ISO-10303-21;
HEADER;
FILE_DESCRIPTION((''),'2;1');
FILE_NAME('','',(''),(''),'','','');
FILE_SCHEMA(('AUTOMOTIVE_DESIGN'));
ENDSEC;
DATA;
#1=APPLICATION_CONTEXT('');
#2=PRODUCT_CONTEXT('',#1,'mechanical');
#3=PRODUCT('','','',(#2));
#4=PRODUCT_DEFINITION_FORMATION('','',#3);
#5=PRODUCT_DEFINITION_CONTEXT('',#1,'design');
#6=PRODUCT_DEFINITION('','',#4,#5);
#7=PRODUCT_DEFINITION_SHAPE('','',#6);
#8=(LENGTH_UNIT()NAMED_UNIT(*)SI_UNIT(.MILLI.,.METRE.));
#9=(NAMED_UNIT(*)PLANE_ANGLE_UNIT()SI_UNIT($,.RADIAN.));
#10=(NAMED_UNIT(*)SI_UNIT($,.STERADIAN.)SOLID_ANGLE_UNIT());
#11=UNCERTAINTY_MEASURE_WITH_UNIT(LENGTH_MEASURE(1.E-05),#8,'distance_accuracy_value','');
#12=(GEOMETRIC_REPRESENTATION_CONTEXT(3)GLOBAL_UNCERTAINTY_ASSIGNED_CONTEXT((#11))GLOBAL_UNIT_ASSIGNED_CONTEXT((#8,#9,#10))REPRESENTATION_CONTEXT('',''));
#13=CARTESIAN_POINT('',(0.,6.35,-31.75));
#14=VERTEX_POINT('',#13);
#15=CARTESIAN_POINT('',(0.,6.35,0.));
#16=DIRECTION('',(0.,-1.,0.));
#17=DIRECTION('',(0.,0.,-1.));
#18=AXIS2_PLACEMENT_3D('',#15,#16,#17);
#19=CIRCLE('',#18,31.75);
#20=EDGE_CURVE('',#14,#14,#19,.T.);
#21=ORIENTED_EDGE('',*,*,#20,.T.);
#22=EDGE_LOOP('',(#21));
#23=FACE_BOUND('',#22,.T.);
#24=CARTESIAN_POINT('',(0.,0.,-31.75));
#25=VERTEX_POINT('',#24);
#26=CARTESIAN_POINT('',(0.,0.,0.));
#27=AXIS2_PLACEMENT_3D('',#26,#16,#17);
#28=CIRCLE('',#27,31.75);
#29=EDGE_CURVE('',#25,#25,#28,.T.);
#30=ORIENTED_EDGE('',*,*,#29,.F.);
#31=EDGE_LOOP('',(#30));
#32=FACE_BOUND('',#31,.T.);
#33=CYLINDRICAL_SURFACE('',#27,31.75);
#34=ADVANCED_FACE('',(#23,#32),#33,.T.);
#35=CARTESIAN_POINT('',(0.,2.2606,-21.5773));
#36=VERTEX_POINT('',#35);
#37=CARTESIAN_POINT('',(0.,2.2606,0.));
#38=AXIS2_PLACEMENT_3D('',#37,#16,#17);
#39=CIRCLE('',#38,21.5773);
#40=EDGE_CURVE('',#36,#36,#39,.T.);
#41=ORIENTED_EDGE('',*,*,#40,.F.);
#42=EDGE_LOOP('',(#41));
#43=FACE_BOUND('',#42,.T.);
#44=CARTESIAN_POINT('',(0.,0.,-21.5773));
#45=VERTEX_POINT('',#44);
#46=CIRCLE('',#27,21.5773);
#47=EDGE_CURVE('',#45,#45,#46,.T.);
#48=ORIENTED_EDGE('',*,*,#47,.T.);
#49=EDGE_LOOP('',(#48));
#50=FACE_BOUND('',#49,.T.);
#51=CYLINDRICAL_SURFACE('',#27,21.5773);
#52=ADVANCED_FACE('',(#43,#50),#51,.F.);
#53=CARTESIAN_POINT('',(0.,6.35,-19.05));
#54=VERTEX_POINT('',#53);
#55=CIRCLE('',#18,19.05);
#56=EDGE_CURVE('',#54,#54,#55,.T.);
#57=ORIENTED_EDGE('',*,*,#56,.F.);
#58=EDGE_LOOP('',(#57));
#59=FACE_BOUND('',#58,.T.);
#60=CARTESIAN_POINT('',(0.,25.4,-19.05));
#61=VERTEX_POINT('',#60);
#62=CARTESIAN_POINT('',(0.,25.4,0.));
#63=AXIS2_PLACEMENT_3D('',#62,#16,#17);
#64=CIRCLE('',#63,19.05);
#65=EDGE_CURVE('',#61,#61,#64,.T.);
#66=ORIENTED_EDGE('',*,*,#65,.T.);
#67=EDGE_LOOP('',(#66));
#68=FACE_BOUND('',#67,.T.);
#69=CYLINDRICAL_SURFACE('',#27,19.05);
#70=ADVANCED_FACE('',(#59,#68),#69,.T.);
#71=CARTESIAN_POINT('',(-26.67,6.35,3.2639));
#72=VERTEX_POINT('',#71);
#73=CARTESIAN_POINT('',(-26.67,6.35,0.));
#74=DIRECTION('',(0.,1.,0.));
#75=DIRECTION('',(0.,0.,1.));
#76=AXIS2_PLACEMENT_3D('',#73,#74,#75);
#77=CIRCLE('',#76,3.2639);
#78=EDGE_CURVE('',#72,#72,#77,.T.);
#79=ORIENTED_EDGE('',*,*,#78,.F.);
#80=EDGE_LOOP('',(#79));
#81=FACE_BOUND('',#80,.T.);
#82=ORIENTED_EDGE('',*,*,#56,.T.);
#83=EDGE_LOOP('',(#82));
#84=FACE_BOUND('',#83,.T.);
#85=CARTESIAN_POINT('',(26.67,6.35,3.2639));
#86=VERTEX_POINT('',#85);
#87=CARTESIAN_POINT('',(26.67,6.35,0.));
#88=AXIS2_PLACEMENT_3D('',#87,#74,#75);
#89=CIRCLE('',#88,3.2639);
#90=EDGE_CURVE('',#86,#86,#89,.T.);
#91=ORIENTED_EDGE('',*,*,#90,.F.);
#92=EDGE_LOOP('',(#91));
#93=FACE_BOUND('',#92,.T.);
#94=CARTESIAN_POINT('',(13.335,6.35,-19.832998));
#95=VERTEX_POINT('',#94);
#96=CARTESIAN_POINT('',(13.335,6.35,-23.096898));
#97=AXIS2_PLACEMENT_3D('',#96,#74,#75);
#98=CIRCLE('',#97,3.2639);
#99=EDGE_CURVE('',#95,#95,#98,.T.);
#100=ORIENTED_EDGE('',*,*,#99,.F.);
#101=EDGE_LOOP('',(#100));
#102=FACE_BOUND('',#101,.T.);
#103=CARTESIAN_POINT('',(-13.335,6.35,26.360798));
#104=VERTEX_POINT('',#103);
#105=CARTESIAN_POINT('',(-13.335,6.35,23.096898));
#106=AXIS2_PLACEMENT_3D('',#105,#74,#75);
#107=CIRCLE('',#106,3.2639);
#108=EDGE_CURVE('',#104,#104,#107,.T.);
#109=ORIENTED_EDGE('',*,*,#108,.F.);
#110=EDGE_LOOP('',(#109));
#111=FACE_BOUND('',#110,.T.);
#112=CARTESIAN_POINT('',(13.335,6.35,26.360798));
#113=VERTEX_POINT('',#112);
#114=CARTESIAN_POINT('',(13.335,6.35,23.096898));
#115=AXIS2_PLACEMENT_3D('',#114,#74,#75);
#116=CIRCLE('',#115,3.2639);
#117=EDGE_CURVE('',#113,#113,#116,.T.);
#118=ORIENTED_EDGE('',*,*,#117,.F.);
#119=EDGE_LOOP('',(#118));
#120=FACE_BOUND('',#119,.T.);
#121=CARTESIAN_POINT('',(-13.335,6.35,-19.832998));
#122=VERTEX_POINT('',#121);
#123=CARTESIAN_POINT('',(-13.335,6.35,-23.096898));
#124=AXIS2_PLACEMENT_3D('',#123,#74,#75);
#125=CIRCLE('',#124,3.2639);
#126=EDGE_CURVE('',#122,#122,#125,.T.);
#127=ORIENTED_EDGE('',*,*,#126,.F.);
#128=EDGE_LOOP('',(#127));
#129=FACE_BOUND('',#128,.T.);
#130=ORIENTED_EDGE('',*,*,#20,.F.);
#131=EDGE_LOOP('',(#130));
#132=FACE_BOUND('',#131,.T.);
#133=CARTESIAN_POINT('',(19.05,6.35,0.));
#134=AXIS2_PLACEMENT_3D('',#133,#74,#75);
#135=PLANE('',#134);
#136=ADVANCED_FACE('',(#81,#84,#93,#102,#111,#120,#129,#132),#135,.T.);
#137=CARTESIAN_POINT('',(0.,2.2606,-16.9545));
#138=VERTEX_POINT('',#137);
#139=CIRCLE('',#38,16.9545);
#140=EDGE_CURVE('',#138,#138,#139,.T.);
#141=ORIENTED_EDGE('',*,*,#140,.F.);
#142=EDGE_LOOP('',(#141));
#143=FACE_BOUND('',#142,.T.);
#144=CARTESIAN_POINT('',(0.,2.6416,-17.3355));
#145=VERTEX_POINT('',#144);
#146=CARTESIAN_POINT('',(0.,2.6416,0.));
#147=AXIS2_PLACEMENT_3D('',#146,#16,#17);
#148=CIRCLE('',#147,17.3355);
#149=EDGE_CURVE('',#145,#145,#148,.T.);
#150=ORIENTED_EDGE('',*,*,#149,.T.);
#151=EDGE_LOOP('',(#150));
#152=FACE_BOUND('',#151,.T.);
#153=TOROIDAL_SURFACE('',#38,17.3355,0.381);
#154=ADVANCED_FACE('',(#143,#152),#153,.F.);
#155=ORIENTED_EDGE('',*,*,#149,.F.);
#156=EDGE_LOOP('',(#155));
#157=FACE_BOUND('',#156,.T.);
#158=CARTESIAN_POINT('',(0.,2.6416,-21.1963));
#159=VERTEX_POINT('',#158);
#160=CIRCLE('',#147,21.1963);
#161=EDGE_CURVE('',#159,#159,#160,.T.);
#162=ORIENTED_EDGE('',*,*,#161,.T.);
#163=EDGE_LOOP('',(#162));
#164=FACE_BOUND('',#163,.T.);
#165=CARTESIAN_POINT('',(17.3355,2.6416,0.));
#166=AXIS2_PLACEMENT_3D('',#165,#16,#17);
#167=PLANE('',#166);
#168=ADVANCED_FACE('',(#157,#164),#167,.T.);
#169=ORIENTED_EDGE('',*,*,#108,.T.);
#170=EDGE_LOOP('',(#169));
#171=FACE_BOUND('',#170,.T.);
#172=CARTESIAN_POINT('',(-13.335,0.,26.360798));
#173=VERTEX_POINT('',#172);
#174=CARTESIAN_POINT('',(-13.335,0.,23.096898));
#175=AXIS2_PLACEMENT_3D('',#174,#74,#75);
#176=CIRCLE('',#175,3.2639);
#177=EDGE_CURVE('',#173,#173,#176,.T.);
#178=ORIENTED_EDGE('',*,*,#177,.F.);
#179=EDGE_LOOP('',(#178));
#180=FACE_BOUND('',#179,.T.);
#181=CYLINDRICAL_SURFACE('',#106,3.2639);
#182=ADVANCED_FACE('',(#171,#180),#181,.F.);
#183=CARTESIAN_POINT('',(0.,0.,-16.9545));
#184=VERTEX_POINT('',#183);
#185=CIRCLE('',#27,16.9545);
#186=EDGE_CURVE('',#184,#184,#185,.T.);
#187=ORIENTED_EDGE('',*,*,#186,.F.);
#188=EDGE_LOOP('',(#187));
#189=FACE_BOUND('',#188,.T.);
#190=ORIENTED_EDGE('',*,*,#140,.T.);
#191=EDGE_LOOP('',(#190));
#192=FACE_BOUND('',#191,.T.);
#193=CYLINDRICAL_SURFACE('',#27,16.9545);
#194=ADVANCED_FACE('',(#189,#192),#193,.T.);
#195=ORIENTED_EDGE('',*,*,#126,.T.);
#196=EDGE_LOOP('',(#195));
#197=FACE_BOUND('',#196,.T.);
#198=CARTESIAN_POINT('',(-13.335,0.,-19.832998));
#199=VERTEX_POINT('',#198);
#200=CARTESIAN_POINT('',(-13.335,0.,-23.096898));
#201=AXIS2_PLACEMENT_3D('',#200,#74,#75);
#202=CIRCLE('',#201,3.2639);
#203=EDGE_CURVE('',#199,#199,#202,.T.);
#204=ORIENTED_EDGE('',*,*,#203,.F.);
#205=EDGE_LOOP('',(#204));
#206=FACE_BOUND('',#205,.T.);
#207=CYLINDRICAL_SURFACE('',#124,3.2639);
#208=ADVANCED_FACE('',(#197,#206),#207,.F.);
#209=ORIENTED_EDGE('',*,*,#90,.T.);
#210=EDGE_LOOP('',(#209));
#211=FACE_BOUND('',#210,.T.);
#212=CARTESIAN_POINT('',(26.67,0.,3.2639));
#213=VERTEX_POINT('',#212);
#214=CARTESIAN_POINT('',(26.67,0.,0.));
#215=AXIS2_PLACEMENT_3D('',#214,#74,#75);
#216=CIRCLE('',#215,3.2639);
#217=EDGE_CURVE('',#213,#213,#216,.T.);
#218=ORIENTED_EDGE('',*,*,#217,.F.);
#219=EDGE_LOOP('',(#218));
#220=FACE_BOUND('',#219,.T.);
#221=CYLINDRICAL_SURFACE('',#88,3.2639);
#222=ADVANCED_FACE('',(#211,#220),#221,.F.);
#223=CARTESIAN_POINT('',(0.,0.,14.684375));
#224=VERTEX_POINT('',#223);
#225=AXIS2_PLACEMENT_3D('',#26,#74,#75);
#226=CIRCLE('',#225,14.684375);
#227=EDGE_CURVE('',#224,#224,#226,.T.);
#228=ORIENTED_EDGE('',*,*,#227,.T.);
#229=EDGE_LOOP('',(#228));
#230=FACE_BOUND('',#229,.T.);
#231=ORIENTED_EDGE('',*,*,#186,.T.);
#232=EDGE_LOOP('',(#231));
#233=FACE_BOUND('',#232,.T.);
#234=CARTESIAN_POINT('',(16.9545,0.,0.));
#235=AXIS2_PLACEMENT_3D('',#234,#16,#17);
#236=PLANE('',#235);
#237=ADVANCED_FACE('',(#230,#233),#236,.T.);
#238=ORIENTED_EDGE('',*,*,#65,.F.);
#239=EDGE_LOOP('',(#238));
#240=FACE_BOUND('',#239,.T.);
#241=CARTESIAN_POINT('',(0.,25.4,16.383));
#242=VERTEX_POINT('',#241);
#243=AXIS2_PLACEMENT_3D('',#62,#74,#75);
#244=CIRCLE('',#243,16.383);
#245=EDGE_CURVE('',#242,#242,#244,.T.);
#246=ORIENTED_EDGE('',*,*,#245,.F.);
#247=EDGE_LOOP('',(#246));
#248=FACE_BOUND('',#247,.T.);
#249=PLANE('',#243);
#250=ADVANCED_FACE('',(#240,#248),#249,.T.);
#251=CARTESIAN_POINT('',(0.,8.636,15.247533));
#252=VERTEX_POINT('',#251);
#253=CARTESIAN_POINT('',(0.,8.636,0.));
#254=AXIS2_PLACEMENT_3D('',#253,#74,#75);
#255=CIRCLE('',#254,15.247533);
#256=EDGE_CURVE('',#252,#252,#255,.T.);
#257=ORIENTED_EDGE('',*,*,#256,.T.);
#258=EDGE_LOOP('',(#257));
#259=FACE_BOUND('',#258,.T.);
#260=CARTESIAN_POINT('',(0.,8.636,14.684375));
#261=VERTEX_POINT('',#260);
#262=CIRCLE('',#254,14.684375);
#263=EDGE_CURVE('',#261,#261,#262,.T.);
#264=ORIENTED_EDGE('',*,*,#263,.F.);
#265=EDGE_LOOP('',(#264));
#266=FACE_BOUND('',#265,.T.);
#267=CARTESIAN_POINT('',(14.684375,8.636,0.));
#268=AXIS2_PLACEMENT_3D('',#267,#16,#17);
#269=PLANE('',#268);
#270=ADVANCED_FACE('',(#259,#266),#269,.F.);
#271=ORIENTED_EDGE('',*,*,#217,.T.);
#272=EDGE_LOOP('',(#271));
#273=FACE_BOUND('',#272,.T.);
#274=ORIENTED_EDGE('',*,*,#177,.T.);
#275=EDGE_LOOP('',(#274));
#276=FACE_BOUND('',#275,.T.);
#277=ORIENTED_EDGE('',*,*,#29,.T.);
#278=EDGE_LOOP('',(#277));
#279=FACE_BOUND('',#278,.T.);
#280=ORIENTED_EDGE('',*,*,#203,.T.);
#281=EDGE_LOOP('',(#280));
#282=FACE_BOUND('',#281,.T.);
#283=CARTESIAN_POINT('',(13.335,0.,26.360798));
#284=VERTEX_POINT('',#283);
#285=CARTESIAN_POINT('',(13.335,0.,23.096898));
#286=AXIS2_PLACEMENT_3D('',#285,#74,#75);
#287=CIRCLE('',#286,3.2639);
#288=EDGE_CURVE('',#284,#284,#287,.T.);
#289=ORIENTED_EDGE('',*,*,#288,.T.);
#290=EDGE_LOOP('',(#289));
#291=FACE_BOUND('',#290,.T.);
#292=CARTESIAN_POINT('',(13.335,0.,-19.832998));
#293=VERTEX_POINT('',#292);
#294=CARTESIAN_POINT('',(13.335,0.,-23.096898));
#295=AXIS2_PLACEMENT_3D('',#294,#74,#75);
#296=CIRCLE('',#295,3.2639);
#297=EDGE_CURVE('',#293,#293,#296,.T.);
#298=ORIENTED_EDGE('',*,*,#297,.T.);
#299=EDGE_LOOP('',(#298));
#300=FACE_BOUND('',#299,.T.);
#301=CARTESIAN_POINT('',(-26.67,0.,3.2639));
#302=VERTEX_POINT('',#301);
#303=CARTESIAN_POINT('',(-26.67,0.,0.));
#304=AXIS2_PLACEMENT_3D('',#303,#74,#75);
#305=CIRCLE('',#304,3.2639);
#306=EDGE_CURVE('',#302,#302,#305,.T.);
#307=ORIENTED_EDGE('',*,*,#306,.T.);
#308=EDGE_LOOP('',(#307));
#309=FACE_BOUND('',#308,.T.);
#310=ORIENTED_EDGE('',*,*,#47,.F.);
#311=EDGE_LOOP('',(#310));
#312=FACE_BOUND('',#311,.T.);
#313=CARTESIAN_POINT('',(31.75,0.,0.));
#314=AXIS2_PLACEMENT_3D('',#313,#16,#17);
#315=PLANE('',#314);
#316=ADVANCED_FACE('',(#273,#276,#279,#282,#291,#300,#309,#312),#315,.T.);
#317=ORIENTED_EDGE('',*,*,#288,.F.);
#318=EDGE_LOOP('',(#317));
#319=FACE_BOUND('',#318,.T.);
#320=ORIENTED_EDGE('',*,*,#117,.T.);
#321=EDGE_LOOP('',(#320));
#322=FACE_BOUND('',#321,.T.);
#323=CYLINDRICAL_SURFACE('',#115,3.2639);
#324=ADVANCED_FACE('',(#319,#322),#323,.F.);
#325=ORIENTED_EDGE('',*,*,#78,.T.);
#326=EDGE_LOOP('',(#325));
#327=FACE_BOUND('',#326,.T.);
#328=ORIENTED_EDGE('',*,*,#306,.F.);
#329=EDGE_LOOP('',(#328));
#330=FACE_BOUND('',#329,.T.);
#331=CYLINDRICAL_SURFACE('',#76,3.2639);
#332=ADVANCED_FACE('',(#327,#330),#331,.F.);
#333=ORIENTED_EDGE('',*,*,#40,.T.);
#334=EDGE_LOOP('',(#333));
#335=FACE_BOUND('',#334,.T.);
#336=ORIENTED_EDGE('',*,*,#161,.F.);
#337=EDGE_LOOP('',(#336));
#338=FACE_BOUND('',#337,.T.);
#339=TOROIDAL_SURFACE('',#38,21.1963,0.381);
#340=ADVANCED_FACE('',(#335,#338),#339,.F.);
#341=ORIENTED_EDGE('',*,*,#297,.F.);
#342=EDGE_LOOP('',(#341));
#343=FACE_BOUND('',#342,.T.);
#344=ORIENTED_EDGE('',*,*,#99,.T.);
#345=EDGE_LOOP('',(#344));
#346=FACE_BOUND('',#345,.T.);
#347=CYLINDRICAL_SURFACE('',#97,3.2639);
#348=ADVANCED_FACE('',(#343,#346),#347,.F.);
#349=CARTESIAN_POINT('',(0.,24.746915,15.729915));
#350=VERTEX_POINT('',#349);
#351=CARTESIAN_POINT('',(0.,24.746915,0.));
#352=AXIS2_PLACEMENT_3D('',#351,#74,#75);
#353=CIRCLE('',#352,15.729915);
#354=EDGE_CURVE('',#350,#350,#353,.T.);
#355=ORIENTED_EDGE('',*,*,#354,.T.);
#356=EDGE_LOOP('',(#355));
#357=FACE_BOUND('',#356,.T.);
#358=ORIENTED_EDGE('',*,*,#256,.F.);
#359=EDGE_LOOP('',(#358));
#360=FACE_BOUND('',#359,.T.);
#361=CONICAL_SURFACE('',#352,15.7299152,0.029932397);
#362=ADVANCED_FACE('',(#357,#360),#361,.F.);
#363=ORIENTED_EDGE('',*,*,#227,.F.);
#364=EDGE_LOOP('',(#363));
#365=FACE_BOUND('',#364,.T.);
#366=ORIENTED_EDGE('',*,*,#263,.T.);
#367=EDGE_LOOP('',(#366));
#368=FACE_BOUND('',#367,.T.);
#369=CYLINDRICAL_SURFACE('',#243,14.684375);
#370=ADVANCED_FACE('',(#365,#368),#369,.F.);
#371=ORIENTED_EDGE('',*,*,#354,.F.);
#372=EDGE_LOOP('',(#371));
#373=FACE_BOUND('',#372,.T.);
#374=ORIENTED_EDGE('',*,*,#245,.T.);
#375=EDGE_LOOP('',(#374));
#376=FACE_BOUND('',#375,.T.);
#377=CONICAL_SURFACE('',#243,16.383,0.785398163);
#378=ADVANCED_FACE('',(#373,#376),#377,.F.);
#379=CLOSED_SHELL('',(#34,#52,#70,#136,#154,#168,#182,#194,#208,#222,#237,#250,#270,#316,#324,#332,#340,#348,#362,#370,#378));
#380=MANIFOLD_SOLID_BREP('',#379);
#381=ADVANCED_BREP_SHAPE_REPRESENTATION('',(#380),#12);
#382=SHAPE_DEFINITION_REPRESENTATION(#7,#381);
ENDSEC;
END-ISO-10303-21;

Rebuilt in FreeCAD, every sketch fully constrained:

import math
import FreeCAD as App
import Part
import Sketcher

V = App.Vector
Q = App.Units.Quantity


def add_polygon(sketch, points):
    """Adds a closed chain of lines whose ends are joined by coincident constraints."""
    first, n = sketch.GeometryCount, len(points)
    for a, b in zip(points, points[1:] + points[:1]):
        sketch.addGeometry(Part.LineSegment(App.Vector(*a, 0), App.Vector(*b, 0)), False)
    for i in range(n):
        sketch.addConstraint(Sketcher.Constraint("Coincident", first + i, 2, first + (i + 1) % n, 1))

doc = App.newDocument("Part")
params = doc.addObject("Spreadsheet::Sheet", "Params")
for row, (alias, value) in enumerate([
    ("sketch1_height", "1 in"),
    ("sketch1_width", "0.5 in"),
    ("sketch1_radius", "0.015 in"),
    ("sketch1_width2", "0.75 in"),
    ("sketch1_width3", "0.152 in"),
    ("revolution_angle", "360 deg"),
    ("sketch2_width", "1 in"),
    ("sketch2_width2", "0.34 in"),
    ("sketch2_height", "0.645 in"),
    ("sketch2_height2", "0.578125 in"),
    ("groove_angle", "360 deg"),
    ("sketch3_diameter", "0.257 in"),
    ("hole_diameter", "0.257 in"),
], start=1):
    params.set(f"A{row}", alias)
    params.set(f"B{row}", "=" + value)
    params.setAlias(f"B{row}", alias)

body = doc.addObject("PartDesign::Body", "Body")

sketch1 = doc.addObject("Sketcher::SketchObject", "Sketch")
body.addObject(sketch1)
sketch1.AttachmentSupport = (doc.XY_Plane, [""])
sketch1.MapMode = "FlatFace"
sketch1.addGeometry([
    Part.LineSegment(V(19.05, 25.4, 0), V(0, 25.4, 0)),
    Part.LineSegment(V(0, 25.4, 0), V(0, 0, 0)),
    Part.LineSegment(V(0, 0, 0), V(16.95, 0, 0)),
    Part.LineSegment(V(16.95, 0, 0), V(16.95, 2.26, 0)),
    Part.ArcOfCircle(Part.Circle(V(17.34, 2.26, 0), V(0, 0, 1), 0.38), math.radians(90), math.radians(180)),
    Part.LineSegment(V(17.34, 2.64, 0), V(21.2, 2.64, 0)),
    Part.ArcOfCircle(Part.Circle(V(21.2, 2.26, 0), V(0, 0, 1), 0.38), math.radians(0), math.radians(90)),
    Part.LineSegment(V(21.58, 2.26, 0), V(21.58, 0, 0)),
    Part.LineSegment(V(21.58, 0, 0), V(31.75, 0, 0)),
    Part.LineSegment(V(31.75, 0, 0), V(31.75, 6.35, 0)),
    Part.LineSegment(V(31.75, 6.35, 0), V(19.05, 6.35, 0)),
    Part.LineSegment(V(19.05, 6.35, 0), V(19.05, 25.4, 0)),
], False)
sketch1.addConstraint([
    Sketcher.Constraint("Coincident", 0, 2, 1, 1),
    Sketcher.Constraint("Coincident", 1, 2, 2, 1),
    Sketcher.Constraint("Coincident", 2, 2, 3, 1),
    Sketcher.Constraint("Tangent", 3, 2, 4, 2),
    Sketcher.Constraint("Tangent", 4, 1, 5, 1),
    Sketcher.Constraint("Tangent", 5, 2, 6, 2),
    Sketcher.Constraint("Tangent", 6, 1, 7, 1),
    Sketcher.Constraint("Coincident", 7, 2, 8, 1),
    Sketcher.Constraint("Coincident", 8, 2, 9, 1),
    Sketcher.Constraint("Coincident", 9, 2, 10, 1),
    Sketcher.Constraint("Coincident", 10, 2, 11, 1),
    Sketcher.Constraint("Coincident", 11, 2, 0, 1),
    Sketcher.Constraint("Horizontal", 0),
    Sketcher.Constraint("Vertical", 1),
    Sketcher.Constraint("Horizontal", 2),
    Sketcher.Constraint("Vertical", 3),
    Sketcher.Constraint("Horizontal", 5),
    Sketcher.Constraint("Vertical", 7),
    Sketcher.Constraint("Horizontal", 8),
    Sketcher.Constraint("Vertical", 9),
    Sketcher.Constraint("Horizontal", 10),
    Sketcher.Constraint("Vertical", 11),
    Sketcher.Constraint("Coincident", 1, 2, -1, 1),
    Sketcher.Constraint("Equal", 4, 6),
    Sketcher.Constraint("PointOnObject", 7, 2, -1),
    Sketcher.Constraint("Equal", 0, 11),
    Sketcher.Constraint("DistanceY", 1, 2, 1, 1, Q("1 in")),
    Sketcher.Constraint("DistanceX", 10, 2, 10, 1, Q("0.5 in")),
    Sketcher.Constraint("Radius", 4, Q("0.015 in")),
    Sketcher.Constraint("DistanceX", 0, 2, 0, 1, Q("0.75 in")),
    Sketcher.Constraint("DistanceX", 5, 1, 5, 2, Q("0.152 in")),
    Sketcher.Constraint("DistanceY", 3, 1, 3, 2, Q("0.089 in")),
    Sketcher.Constraint("DistanceX", 2, 1, 2, 2, Q("0.6675 in")),
])
sketch1.setExpression("Constraints[26]", "Params.sketch1_height")
sketch1.setExpression("Constraints[27]", "Params.sketch1_width")
sketch1.setExpression("Constraints[28]", "Params.sketch1_radius")
sketch1.setExpression("Constraints[29]", "Params.sketch1_width2")
sketch1.setExpression("Constraints[30]", "Params.sketch1_width3")
revolution = doc.addObject("PartDesign::Revolution", "Revolution")
body.addObject(revolution)
revolution.Profile = sketch1
revolution.ReferenceAxis = (sketch1, ["V_Axis"])
revolution.setExpression("Angle", "Params.revolution_angle")

sketch2 = doc.addObject("Sketcher::SketchObject", "Sketch001")
body.addObject(sketch2)
sketch2.AttachmentSupport = (doc.YZ_Plane, [""])
sketch2.MapMode = "FlatFace"
add_polygon(sketch2, [(0, 0), (25.4, 0), (25.4, 16.4), (24.7, 15.7), (8.6, 15.2), (8.6, 14.7), (0, 14.7)])
sketch2.addConstraint([
    Sketcher.Constraint("Horizontal", 0),
    Sketcher.Constraint("Vertical", 1),
    Sketcher.Constraint("Vertical", 4),
    Sketcher.Constraint("Horizontal", 5),
    Sketcher.Constraint("Vertical", 6),
    Sketcher.Constraint("Coincident", 6, 2, -1, 1),
    Sketcher.Constraint("DistanceX", 0, 1, 0, 2, Q("1 in")),
    Sketcher.Constraint("Angle", 2, Q("-135 deg")),
    Sketcher.Constraint("DistanceX", 5, 2, 5, 1, Q("0.34 in")),
    Sketcher.Constraint("DistanceY", 1, 1, 1, 2, Q("0.645 in")),
    Sketcher.Constraint("DistanceY", 6, 2, 6, 1, Q("0.578125 in")),
    Sketcher.Constraint("Distance", 2, Q("0.923601 mm")),
    Sketcher.Constraint("DistanceY", 4, 2, 4, 1, Q("0.563158 mm")),
])
sketch2.setExpression("Constraints[13]", "Params.sketch2_width")
sketch2.setExpression("Constraints[15]", "Params.sketch2_width2")
sketch2.setExpression("Constraints[16]", "Params.sketch2_height")
sketch2.setExpression("Constraints[17]", "Params.sketch2_height2")
groove = doc.addObject("PartDesign::Groove", "Groove")
body.addObject(groove)
groove.Profile = sketch2
groove.ReferenceAxis = (sketch2, ["H_Axis"])
groove.setExpression("Angle", "Params.groove_angle")

sketch3 = doc.addObject("Sketcher::SketchObject", "Sketch002")
body.addObject(sketch3)
sketch3.AttachmentSupport = (doc.XZ_Plane, [""])
sketch3.MapMode = "FlatFace"
sketch3.AttachmentOffset = App.Placement(V(0, 0, -0.25 * 25.4), App.Rotation())
sketch3.addGeometry(Part.Circle(V(26.7, 0, 0), V(0, 0, 1), 3.3), False)
sketch3.addConstraint([
    Sketcher.Constraint("PointOnObject", 0, 3, -1),
    Sketcher.Constraint("Diameter", 0, Q("0.257 in")),
    Sketcher.Constraint("DistanceX", -1, 1, 0, 3, Q("1.05 in")),
])
sketch3.setExpression("Constraints[1]", "Params.sketch3_diameter")
doc.recompute()
hole = doc.addObject("PartDesign::Hole", "Hole")
body.addObject(hole)
hole.Profile = sketch3
hole.ThreadType = "None"
hole.setExpression("Diameter", "Params.hole_diameter")
hole.DepthType = "ThroughAll"
hole.Reversed = True
doc.recompute()

polarpattern = doc.addObject("PartDesign::PolarPattern", "PolarPattern")
body.addObject(polarpattern)
polarpattern.Originals = [hole]
polarpattern.Axis = (doc.Y_Axis, [""])
polarpattern.Angle = 360
polarpattern.Occurrences = 6
body.Tip = polarpattern

doc.recompute()
